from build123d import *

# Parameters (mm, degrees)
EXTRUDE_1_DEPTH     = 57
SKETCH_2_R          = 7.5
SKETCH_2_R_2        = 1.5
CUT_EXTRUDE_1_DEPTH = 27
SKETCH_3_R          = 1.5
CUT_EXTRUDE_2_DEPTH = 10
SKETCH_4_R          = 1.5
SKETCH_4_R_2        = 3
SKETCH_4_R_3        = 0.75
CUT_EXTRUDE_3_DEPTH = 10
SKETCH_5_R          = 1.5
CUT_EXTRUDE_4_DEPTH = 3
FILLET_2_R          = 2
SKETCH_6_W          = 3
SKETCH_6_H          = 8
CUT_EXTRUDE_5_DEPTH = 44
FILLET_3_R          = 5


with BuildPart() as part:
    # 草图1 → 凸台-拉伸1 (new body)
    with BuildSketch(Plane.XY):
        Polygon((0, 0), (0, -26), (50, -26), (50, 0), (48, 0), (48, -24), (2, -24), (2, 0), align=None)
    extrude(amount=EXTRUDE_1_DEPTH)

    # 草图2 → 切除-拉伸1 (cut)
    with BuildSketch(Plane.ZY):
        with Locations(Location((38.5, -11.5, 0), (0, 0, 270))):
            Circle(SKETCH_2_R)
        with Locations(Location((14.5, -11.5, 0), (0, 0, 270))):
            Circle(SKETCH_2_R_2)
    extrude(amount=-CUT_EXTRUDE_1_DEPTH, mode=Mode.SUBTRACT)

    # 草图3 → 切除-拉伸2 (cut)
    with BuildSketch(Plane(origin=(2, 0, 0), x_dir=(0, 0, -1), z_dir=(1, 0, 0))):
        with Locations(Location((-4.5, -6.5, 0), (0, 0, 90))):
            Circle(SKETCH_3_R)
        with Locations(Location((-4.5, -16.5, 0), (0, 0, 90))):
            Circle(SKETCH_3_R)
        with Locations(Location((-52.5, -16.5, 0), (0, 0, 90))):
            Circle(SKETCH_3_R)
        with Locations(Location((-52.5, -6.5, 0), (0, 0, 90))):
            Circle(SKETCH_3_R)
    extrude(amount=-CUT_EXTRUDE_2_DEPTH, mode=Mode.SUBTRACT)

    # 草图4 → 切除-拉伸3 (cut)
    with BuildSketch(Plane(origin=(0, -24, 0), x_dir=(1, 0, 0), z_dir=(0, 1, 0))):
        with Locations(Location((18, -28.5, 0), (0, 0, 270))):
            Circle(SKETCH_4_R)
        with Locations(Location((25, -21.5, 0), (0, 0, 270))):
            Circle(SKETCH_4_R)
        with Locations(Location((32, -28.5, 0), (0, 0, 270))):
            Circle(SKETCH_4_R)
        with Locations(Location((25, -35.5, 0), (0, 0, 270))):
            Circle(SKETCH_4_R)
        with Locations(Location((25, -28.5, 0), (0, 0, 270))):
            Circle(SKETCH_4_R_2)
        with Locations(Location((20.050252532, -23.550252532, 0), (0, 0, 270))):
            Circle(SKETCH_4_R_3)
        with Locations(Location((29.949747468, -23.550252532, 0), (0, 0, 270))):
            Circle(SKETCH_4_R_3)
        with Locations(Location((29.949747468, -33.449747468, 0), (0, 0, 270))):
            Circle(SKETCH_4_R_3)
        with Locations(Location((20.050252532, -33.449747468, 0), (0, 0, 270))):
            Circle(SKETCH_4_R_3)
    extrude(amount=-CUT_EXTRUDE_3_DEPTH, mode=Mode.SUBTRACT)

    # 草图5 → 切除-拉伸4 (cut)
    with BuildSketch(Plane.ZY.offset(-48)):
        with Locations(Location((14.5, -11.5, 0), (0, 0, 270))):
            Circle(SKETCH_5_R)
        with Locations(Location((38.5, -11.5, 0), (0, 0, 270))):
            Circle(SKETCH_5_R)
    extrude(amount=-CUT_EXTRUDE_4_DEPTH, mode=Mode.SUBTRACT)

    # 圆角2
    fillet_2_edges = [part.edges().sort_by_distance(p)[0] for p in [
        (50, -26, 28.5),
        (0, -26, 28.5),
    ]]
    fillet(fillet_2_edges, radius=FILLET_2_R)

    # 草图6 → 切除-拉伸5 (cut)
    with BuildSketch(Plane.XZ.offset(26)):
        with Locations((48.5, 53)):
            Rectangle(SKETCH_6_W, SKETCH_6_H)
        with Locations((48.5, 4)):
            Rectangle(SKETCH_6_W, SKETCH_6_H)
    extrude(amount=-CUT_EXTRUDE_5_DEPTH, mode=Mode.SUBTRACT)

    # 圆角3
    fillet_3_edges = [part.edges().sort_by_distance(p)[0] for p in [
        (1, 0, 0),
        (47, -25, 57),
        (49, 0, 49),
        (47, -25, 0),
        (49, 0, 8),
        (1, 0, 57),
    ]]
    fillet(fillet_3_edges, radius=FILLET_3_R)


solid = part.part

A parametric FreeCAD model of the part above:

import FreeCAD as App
import Part
import Sketcher
from FreeCAD import Vector


def edges_at(feature, points):
    """Names of the edges that pass closest to the given points."""
    edges = feature.Shape.Edges
    near = lambda p: min(range(len(edges)), key=lambda i: edges[i].distToShape(Part.Vertex(*p))[0])
    return sorted({f"Edge{near(p) + 1}" for p in points})

doc = App.newDocument("Part")
params = doc.addObject("Spreadsheet::Sheet", "Params")
for row, (alias, value) in enumerate([
    ("sketch1_width", "50 mm"),
    ("sketch1_width2", "2 mm"),
    ("sketch1_height", "26 mm"),
    ("sketch1_height2", "24 mm"),
    ("pad1_length", "57 mm"),
    ("sketch2_diameter", "15 mm"),
    ("sketch2_diameter2", "3 mm"),
    ("pocket1_length", "27 mm"),
    ("sketch3_diameter", "3 mm"),
    ("pocket2_length", "10 mm"),
    ("sketch4_diameter", "3 mm"),
    ("sketch4_diameter2", "6 mm"),
    ("sketch4_diameter3", "1.5 mm"),
    ("pocket3_length", "10 mm"),
    ("sketch5_diameter", "3 mm"),
    ("pocket4_length", "3 mm"),
    ("fillet_radius", "2 mm"),
    ("sketch6_width", "3 mm"),
    ("sketch6_height", "8 mm"),
    ("pocket5_length", "44 mm"),
    ("fillet2_radius", "5 mm"),
], start=1):
    params.set(f"A{row}", alias)
    params.set(f"B{row}", "=" + value)
    params.setAlias(f"B{row}", alias)

body = doc.addObject("PartDesign::Body", "Body")

sketch1 = doc.addObject("Sketcher::SketchObject", "Sketch")
body.addObject(sketch1)
sketch1.AttachmentSupport = (doc.XY_Plane, [""])
sketch1.MapMode = "FlatFace"
sketch1.addGeometry(Part.LineSegment(Vector(0, 0, 0), Vector(0, -26, 0)), False)
sketch1.addGeometry(Part.LineSegment(Vector(0, -26, 0), Vector(50, -26, 0)), False)
sketch1.addGeometry(Part.LineSegment(Vector(50, -26, 0), Vector(50, 0, 0)), False)
sketch1.addGeometry(Part.LineSegment(Vector(50, 0, 0), Vector(48, 0, 0)), False)
sketch1.addGeometry(Part.LineSegment(Vector(48, 0, 0), Vector(48, -24, 0)), False)
sketch1.addGeometry(Part.LineSegment(Vector(48, -24, 0), Vector(2, -24, 0)), False)
sketch1.addGeometry(Part.LineSegment(Vector(2, -24, 0), Vector(2, 0, 0)), False)
sketch1.addGeometry(Part.LineSegment(Vector(2, 0, 0), Vector(0, 0, 0)), False)
sketch1.addConstraint(Sketcher.Constraint("Coincident", 0, 2, 1, 1))
sketch1.addConstraint(Sketcher.Constraint("Coincident", 1, 2, 2, 1))
sketch1.addConstraint(Sketcher.Constraint("Coincident", 2, 2, 3, 1))
sketch1.addConstraint(Sketcher.Constraint("Coincident", 3, 2, 4, 1))
sketch1.addConstraint(Sketcher.Constraint("Coincident", 4, 2, 5, 1))
sketch1.addConstraint(Sketcher.Constraint("Coincident", 5, 2, 6, 1))
sketch1.addConstraint(Sketcher.Constraint("Coincident", 6, 2, 7, 1))
sketch1.addConstraint(Sketcher.Constraint("Coincident", 7, 2, 0, 1))
sketch1.addConstraint(Sketcher.Constraint("Vertical", 0))
sketch1.addConstraint(Sketcher.Constraint("Horizontal", 1))
sketch1.addConstraint(Sketcher.Constraint("Vertical", 2))
sketch1.addConstraint(Sketcher.Constraint("Horizontal", 3))
sketch1.addConstraint(Sketcher.Constraint("Vertical", 4))
sketch1.addConstraint(Sketcher.Constraint("Horizontal", 5))
sketch1.addConstraint(Sketcher.Constraint("Vertical", 6))
sketch1.addConstraint(Sketcher.Constraint("Horizontal", 7))
sketch1.addConstraint(Sketcher.Constraint("Coincident", 7, 2, -1, 1))
sketch1.addConstraint(Sketcher.Constraint("PointOnObject", 2, 2, -1))
sketch1.addConstraint(Sketcher.Constraint("Equal", 3, 7))
sketch1.addConstraint(Sketcher.Constraint("DistanceX", 1, 1, 1, 2, 50.0))
sketch1.addConstraint(Sketcher.Constraint("DistanceX", 3, 2, 3, 1, 2.0))
sketch1.addConstraint(Sketcher.Constraint("DistanceY", 0, 2, 0, 1, 26.0))
sketch1.addConstraint(Sketcher.Constraint("DistanceY", 4, 2, 4, 1, 24.0))
sketch1.setExpression("Constraints[19]", "Params.sketch1_width")
sketch1.setExpression("Constraints[20]", "Params.sketch1_width2")
sketch1.setExpression("Constraints[21]", "Params.sketch1_height")
sketch1.setExpression("Constraints[22]", "Params.sketch1_height2")
pad1 = doc.addObject("PartDesign::Pad", "Pad")
body.addObject(pad1)
pad1.Profile = sketch1
pad1.setExpression("Length", "Params.pad1_length")

sketch2 = doc.addObject("Sketcher::SketchObject", "Sketch001")
body.addObject(sketch2)
sketch2.AttachmentSupport = (doc.YZ_Plane, [""])
sketch2.MapMode = "FlatFace"
sketch2.addGeometry(Part.Circle(Vector(-11.5, 38.5, 0), Vector(0, 0, 1), 7.5), False)
sketch2.addGeometry(Part.Circle(Vector(-11.5, 14.5, 0), Vector(0, 0, 1), 1.5), False)
sketch2.addConstraint(Sketcher.Constraint("Vertical", 0, 3, 1, 3))
sketch2.addConstraint(Sketcher.Constraint("Diameter", 0, 15.0))
sketch2.addConstraint(Sketcher.Constraint("Diameter", 1, 3.0))
sketch2.addConstraint(Sketcher.Constraint("DistanceY", 1, 3, 0, 3, 24.0))
sketch2.addConstraint(Sketcher.Constraint("DistanceX", 0, 3, -1, 1, 11.5))
sketch2.addConstraint(Sketcher.Constraint("DistanceY", -1, 1, 0, 3, 38.5))
sketch2.setExpression("Constraints[1]", "Params.sketch2_diameter")
sketch2.setExpression("Constraints[2]", "Params.sketch2_diameter2")
pocket1 = doc.addObject("PartDesign::Pocket", "Pocket")
body.addObject(pocket1)
pocket1.Profile = sketch2
pocket1.setExpression("Length", "Params.pocket1_length")
pocket1.Reversed = True

sketch3 = doc.addObject("Sketcher::SketchObject", "Sketch002")
body.addObject(sketch3)
sketch3.AttachmentSupport = (doc.YZ_Plane, [""])
sketch3.MapMode = "FlatFace"
sketch3.AttachmentOffset = App.Placement(Vector(0, 0, 2), App.Rotation())
sketch3.addGeometry(Part.Circle(Vector(-6.5, 4.5, 0), Vector(0, 0, 1), 1.5), False)
sketch3.addGeometry(Part.Circle(Vector(-16.5, 4.5, 0), Vector(0, 0, 1), 1.5), False)
sketch3.addGeometry(Part.Circle(Vector(-16.5, 52.5, 0), Vector(0, 0, 1), 1.5), False)
sketch3.addGeometry(Part.Circle(Vector(-6.5, 52.5, 0), Vector(0, 0, 1), 1.5), False)
sketch3.addConstraint(Sketcher.Constraint("Equal", 0, 1))
sketch3.addConstraint(Sketcher.Constraint("Equal", 1, 2))
sketch3.addConstraint(Sketcher.Constraint("Equal", 2, 3))
sketch3.addConstraint(Sketcher.Constraint("Horizontal", 0, 3, 1, 3))
sketch3.addConstraint(Sketcher.Constraint("Horizontal", 2, 3, 3, 3))
sketch3.addConstraint(Sketcher.Constraint("Vertical", 1, 3, 2, 3))
sketch3.addConstraint(Sketcher.Constraint("Vertical", 0, 3, 3, 3))
sketch3.addConstraint(Sketcher.Constraint("Diameter", 0, 3.0))
sketch3.addConstraint(Sketcher.Constraint("DistanceX", 1, 3, 0, 3, 10.0))
sketch3.addConstraint(Sketcher.Constraint("DistanceY", 1, 3, 2, 3, 48.0))
sketch3.addConstraint(Sketcher.Constraint("DistanceX", 0, 3, -1, 1, 6.5))
sketch3.addConstraint(Sketcher.Constraint("DistanceY", -1, 1, 0, 3, 4.5))
sketch3.setExpression("Constraints[7]", "Params.sketch3_diameter")
pocket2 = doc.addObject("PartDesign::Pocket", "Pocket001")
body.addObject(pocket2)
pocket2.Profile = sketch3
pocket2.setExpression("Length", "Params.pocket2_length")

sketch4 = doc.addObject("Sketcher::SketchObject", "Sketch003")
body.addObject(sketch4)
sketch4.AttachmentSupport = (doc.XZ_Plane, [""])
sketch4.MapMode = "FlatFace"
sketch4.AttachmentOffset = App.Placement(Vector(0, 0, 24), App.Rotation())
sketch4.addGeometry(Part.Circle(Vector(18, 28.5, 0), Vector(0, 0, 1), 1.5), False)
sketch4.addGeometry(Part.Circle(Vector(25, 21.5, 0), Vector(0, 0, 1), 1.5), False)
sketch4.addGeometry(Part.Circle(Vector(32, 28.5, 0), Vector(0, 0, 1), 1.5), False)
sketch4.addGeometry(Part.Circle(Vector(25, 35.5, 0), Vector(0, 0, 1), 1.5), False)
sketch4.addGeometry(Part.Circle(Vector(25, 28.5, 0), Vector(0, 0, 1), 3), False)
sketch4.addGeometry(Part.Circle(Vector(20.050253, 23.550253, 0), Vector(0, 0, 1), 0.75), False)
sketch4.addGeometry(Part.Circle(Vector(29.949747, 23.550253, 0), Vector(0, 0, 1), 0.75), False)
sketch4.addGeometry(Part.Circle(Vector(29.949747, 33.449747, 0), Vector(0, 0, 1), 0.75), False)
sketch4.addGeometry(Part.Circle(Vector(20.050253, 33.449747, 0), Vector(0, 0, 1), 0.75), False)
sketch4.addConstraint(Sketcher.Constraint("Equal", 0, 1))
sketch4.addConstraint(Sketcher.Constraint("Equal", 1, 2))
sketch4.addConstraint(Sketcher.Constraint("Equal", 2, 3))
sketch4.addConstraint(Sketcher.Constraint("Equal", 5, 6))
sketch4.addConstraint(Sketcher.Constraint("Equal", 6, 7))
sketch4.addConstraint(Sketcher.Constraint("Equal", 7, 8))
sketch4.addConstraint(Sketcher.Constraint("Horizontal", 0, 3, 2, 3))
sketch4.addConstraint(Sketcher.Constraint("Horizontal", 2, 3, 4, 3))
sketch4.addConstraint(Sketcher.Constraint("Horizontal", 5, 3, 6, 3))
sketch4.addConstraint(Sketcher.Constraint("Horizontal", 7, 3, 8, 3))
sketch4.addConstraint(Sketcher.Constraint("Vertical", 1, 3, 3, 3))
sketch4.addConstraint(Sketcher.Constraint("Vertical", 3, 3, 4, 3))
sketch4.addConstraint(Sketcher.Constraint("Vertical", 6, 3, 7, 3))
sketch4.addConstraint(Sketcher.Constraint("Vertical", 5, 3, 8, 3))
sketch4.addConstraint(Sketcher.Constraint("Diameter", 0, 3.0))
sketch4.addConstraint(Sketcher.Constraint("Diameter", 4, 6.0))
sketch4.addConstraint(Sketcher.Constraint("Diameter", 5, 1.5))
sketch4.addConstraint(Sketcher.Constraint("DistanceX", -1, 1, 0, 3, 18.0))
sketch4.addConstraint(Sketcher.Constraint("DistanceX", -1, 1, 1, 3, 25.0))
sketch4.addConstraint(Sketcher.Constraint("DistanceX", -1, 1, 2, 3, 32.0))
sketch4.addConstraint(Sketcher.Constraint("DistanceY", 1, 3, 0, 3, 7.0))
sketch4.addConstraint(Sketcher.Constraint("DistanceY", 0, 3, 3, 3, 7.0))
sketch4.addConstraint(Sketcher.Constraint("DistanceY", -1, 1, 0, 3, 28.5))
sketch4.addConstraint(Sketcher.Constraint("DistanceX", -1, 1, 5, 3, 20.050253))
sketch4.addConstraint(Sketcher.Constraint("DistanceY", -1, 1, 5, 3, 23.550253))
sketch4.addConstraint(Sketcher.Constraint("DistanceX", -1, 1, 6, 3, 29.949747))
sketch4.addConstraint(Sketcher.Constraint("DistanceY", -1, 1, 7, 3, 33.449747))
sketch4.setExpression("Constraints[14]", "Params.sketch4_diameter")
sketch4.setExpression("Constraints[15]", "Params.sketch4_diameter2")
sketch4.setExpression("Constraints[16]", "Params.sketch4_diameter3")
pocket3 = doc.addObject("PartDesign::Pocket", "Pocket002")
body.addObject(pocket3)
pocket3.Profile = sketch4
pocket3.setExpression("Length", "Params.pocket3_length")
pocket3.Reversed = True

sketch5 = doc.addObject("Sketcher::SketchObject", "Sketch004")
body.addObject(sketch5)
sketch5.AttachmentSupport = (doc.YZ_Plane, [""])
sketch5.MapMode = "FlatFace"
sketch5.AttachmentOffset = App.Placement(Vector(0, 0, 48), App.Rotation())
sketch5.addGeometry(Part.Circle(Vector(-11.5, 14.5, 0), Vector(0, 0, 1), 1.5), False)
sketch5.addGeometry(Part.Circle(Vector(-11.5, 38.5, 0), Vector(0, 0, 1), 1.5), False)
sketch5.addConstraint(Sketcher.Constraint("Equal", 0, 1))
sketch5.addConstraint(Sketcher.Constraint("Vertical", 0, 3, 1, 3))
sketch5.addConstraint(Sketcher.Constraint("Diameter", 0, 3.0))
sketch5.addConstraint(Sketcher.Constraint("DistanceY", 0, 3, 1, 3, 24.0))
sketch5.addConstraint(Sketcher.Constraint("DistanceX", 0, 3, -1, 1, 11.5))
sketch5.addConstraint(Sketcher.Constraint("DistanceY", -1, 1, 0, 3, 14.5))
sketch5.setExpression("Constraints[2]", "Params.sketch5_diameter")
pocket4 = doc.addObject("PartDesign::Pocket", "Pocket003")
body.addObject(pocket4)
pocket4.Profile = sketch5
pocket4.setExpression("Length", "Params.pocket4_length")
pocket4.Reversed = True
doc.recompute()

fillet = doc.addObject("PartDesign::Fillet", "Fillet")
body.addObject(fillet)
fillet.Base = (pocket4, edges_at(pocket4, [(50, -26, 28.5), (0, -26, 28.5)]))
fillet.setExpression("Radius", "Params.fillet_radius")

sketch6 = doc.addObject("Sketcher::SketchObject", "Sketch005")
body.addObject(sketch6)
sketch6.AttachmentSupport = (doc.XZ_Plane, [""])
sketch6.MapMode = "FlatFace"
sketch6.AttachmentOffset = App.Placement(Vector(0, 0, 26), App.Rotation())
sketch6.addGeometry(Part.LineSegment(Vector(47, 57, 0), Vector(47, 49, 0)), False)
sketch6.addGeometry(Part.LineSegment(Vector(47, 49, 0), Vector(50, 49, 0)), False)
sketch6.addGeometry(Part.LineSegment(Vector(50, 49, 0), Vector(50, 57, 0)), False)
sketch6.addGeometry(Part.LineSegment(Vector(50, 57, 0), Vector(47, 57, 0)), False)
sketch6.addGeometry(Part.LineSegment(Vector(47, 8, 0), Vector(47, 0, 0)), False)
sketch6.addGeometry(Part.LineSegment(Vector(47, 0, 0), Vector(50, 0, 0)), False)
sketch6.addGeometry(Part.LineSegment(Vector(50, 0, 0), Vector(50, 8, 0)), False)
sketch6.addGeometry(Part.LineSegment(Vector(50, 8, 0), Vector(47, 8, 0)), False)
sketch6.addConstraint(Sketcher.Constraint("Coincident", 0, 2, 1, 1))
sketch6.addConstraint(Sketcher.Constraint("Coincident", 1, 2, 2, 1))
sketch6.addConstraint(Sketcher.Constraint("Coincident", 2, 2, 3, 1))
sketch6.addConstraint(Sketcher.Constraint("Coincident", 3, 2, 0, 1))
sketch6.addConstraint(Sketcher.Constraint("Coincident", 4, 2, 5, 1))
sketch6.addConstraint(Sketcher.Constraint("Coincident", 5, 2, 6, 1))
sketch6.addConstraint(Sketcher.Constraint("Coincident", 6, 2, 7, 1))
sketch6.addConstraint(Sketcher.Constraint("Coincident", 7, 2, 4, 1))
sketch6.addConstraint(Sketcher.Constraint("Vertical", 0))
sketch6.addConstraint(Sketcher.Constraint("Horizontal", 1))
sketch6.addConstraint(Sketcher.Constraint("Vertical", 2))
sketch6.addConstraint(Sketcher.Constraint("Horizontal", 3))
sketch6.addConstraint(Sketcher.Constraint("Vertical", 4))
sketch6.addConstraint(Sketcher.Constraint("Horizontal", 5))
sketch6.addConstraint(Sketcher.Constraint("Vertical", 6))
sketch6.addConstraint(Sketcher.Constraint("Horizontal", 7))
sketch6.addConstraint(Sketcher.Constraint("PointOnObject", 4, 2, -1))
sketch6.addConstraint(Sketcher.Constraint("Vertical", 3, 2, 4, 2))
sketch6.addConstraint(Sketcher.Constraint("Vertical", 2, 2, 5, 2))
sketch6.addConstraint(Sketcher.Constraint("Equal", 2, 4))
sketch6.addConstraint(Sketcher.Constraint("DistanceX", 1, 1, 1, 2, 3.0))
sketch6.addConstraint(Sketcher.Constraint("DistanceY", 0, 2, 0, 1, 8.0))
sketch6.addConstraint(Sketcher.Constraint("DistanceX", -1, 1, 0, 2, 47.0))
sketch6.addConstraint(Sketcher.Constraint("DistanceY", -1, 1, 0, 2, 49.0))
sketch6.setExpression("Constraints[20]", "Params.sketch6_width")
sketch6.setExpression("Constraints[21]", "Params.sketch6_height")
pocket5 = doc.addObject("PartDesign::Pocket", "Pocket004")
body.addObject(pocket5)
pocket5.Profile = sketch6
pocket5.setExpression("Length", "Params.pocket5_length")
doc.recompute()

fillet2 = doc.addObject("PartDesign::Fillet", "Fillet001")
body.addObject(fillet2)
fillet2.Base = (pocket5, edges_at(pocket5, [
    (1, 0, 0),
    (47, -25, 57),
    (49, 0, 49),
    (47, -25, 0),
    (49, 0, 8),
    (1, 0, 57),
]))
fillet2.setExpression("Radius", "Params.fillet2_radius")

doc.recompute()
